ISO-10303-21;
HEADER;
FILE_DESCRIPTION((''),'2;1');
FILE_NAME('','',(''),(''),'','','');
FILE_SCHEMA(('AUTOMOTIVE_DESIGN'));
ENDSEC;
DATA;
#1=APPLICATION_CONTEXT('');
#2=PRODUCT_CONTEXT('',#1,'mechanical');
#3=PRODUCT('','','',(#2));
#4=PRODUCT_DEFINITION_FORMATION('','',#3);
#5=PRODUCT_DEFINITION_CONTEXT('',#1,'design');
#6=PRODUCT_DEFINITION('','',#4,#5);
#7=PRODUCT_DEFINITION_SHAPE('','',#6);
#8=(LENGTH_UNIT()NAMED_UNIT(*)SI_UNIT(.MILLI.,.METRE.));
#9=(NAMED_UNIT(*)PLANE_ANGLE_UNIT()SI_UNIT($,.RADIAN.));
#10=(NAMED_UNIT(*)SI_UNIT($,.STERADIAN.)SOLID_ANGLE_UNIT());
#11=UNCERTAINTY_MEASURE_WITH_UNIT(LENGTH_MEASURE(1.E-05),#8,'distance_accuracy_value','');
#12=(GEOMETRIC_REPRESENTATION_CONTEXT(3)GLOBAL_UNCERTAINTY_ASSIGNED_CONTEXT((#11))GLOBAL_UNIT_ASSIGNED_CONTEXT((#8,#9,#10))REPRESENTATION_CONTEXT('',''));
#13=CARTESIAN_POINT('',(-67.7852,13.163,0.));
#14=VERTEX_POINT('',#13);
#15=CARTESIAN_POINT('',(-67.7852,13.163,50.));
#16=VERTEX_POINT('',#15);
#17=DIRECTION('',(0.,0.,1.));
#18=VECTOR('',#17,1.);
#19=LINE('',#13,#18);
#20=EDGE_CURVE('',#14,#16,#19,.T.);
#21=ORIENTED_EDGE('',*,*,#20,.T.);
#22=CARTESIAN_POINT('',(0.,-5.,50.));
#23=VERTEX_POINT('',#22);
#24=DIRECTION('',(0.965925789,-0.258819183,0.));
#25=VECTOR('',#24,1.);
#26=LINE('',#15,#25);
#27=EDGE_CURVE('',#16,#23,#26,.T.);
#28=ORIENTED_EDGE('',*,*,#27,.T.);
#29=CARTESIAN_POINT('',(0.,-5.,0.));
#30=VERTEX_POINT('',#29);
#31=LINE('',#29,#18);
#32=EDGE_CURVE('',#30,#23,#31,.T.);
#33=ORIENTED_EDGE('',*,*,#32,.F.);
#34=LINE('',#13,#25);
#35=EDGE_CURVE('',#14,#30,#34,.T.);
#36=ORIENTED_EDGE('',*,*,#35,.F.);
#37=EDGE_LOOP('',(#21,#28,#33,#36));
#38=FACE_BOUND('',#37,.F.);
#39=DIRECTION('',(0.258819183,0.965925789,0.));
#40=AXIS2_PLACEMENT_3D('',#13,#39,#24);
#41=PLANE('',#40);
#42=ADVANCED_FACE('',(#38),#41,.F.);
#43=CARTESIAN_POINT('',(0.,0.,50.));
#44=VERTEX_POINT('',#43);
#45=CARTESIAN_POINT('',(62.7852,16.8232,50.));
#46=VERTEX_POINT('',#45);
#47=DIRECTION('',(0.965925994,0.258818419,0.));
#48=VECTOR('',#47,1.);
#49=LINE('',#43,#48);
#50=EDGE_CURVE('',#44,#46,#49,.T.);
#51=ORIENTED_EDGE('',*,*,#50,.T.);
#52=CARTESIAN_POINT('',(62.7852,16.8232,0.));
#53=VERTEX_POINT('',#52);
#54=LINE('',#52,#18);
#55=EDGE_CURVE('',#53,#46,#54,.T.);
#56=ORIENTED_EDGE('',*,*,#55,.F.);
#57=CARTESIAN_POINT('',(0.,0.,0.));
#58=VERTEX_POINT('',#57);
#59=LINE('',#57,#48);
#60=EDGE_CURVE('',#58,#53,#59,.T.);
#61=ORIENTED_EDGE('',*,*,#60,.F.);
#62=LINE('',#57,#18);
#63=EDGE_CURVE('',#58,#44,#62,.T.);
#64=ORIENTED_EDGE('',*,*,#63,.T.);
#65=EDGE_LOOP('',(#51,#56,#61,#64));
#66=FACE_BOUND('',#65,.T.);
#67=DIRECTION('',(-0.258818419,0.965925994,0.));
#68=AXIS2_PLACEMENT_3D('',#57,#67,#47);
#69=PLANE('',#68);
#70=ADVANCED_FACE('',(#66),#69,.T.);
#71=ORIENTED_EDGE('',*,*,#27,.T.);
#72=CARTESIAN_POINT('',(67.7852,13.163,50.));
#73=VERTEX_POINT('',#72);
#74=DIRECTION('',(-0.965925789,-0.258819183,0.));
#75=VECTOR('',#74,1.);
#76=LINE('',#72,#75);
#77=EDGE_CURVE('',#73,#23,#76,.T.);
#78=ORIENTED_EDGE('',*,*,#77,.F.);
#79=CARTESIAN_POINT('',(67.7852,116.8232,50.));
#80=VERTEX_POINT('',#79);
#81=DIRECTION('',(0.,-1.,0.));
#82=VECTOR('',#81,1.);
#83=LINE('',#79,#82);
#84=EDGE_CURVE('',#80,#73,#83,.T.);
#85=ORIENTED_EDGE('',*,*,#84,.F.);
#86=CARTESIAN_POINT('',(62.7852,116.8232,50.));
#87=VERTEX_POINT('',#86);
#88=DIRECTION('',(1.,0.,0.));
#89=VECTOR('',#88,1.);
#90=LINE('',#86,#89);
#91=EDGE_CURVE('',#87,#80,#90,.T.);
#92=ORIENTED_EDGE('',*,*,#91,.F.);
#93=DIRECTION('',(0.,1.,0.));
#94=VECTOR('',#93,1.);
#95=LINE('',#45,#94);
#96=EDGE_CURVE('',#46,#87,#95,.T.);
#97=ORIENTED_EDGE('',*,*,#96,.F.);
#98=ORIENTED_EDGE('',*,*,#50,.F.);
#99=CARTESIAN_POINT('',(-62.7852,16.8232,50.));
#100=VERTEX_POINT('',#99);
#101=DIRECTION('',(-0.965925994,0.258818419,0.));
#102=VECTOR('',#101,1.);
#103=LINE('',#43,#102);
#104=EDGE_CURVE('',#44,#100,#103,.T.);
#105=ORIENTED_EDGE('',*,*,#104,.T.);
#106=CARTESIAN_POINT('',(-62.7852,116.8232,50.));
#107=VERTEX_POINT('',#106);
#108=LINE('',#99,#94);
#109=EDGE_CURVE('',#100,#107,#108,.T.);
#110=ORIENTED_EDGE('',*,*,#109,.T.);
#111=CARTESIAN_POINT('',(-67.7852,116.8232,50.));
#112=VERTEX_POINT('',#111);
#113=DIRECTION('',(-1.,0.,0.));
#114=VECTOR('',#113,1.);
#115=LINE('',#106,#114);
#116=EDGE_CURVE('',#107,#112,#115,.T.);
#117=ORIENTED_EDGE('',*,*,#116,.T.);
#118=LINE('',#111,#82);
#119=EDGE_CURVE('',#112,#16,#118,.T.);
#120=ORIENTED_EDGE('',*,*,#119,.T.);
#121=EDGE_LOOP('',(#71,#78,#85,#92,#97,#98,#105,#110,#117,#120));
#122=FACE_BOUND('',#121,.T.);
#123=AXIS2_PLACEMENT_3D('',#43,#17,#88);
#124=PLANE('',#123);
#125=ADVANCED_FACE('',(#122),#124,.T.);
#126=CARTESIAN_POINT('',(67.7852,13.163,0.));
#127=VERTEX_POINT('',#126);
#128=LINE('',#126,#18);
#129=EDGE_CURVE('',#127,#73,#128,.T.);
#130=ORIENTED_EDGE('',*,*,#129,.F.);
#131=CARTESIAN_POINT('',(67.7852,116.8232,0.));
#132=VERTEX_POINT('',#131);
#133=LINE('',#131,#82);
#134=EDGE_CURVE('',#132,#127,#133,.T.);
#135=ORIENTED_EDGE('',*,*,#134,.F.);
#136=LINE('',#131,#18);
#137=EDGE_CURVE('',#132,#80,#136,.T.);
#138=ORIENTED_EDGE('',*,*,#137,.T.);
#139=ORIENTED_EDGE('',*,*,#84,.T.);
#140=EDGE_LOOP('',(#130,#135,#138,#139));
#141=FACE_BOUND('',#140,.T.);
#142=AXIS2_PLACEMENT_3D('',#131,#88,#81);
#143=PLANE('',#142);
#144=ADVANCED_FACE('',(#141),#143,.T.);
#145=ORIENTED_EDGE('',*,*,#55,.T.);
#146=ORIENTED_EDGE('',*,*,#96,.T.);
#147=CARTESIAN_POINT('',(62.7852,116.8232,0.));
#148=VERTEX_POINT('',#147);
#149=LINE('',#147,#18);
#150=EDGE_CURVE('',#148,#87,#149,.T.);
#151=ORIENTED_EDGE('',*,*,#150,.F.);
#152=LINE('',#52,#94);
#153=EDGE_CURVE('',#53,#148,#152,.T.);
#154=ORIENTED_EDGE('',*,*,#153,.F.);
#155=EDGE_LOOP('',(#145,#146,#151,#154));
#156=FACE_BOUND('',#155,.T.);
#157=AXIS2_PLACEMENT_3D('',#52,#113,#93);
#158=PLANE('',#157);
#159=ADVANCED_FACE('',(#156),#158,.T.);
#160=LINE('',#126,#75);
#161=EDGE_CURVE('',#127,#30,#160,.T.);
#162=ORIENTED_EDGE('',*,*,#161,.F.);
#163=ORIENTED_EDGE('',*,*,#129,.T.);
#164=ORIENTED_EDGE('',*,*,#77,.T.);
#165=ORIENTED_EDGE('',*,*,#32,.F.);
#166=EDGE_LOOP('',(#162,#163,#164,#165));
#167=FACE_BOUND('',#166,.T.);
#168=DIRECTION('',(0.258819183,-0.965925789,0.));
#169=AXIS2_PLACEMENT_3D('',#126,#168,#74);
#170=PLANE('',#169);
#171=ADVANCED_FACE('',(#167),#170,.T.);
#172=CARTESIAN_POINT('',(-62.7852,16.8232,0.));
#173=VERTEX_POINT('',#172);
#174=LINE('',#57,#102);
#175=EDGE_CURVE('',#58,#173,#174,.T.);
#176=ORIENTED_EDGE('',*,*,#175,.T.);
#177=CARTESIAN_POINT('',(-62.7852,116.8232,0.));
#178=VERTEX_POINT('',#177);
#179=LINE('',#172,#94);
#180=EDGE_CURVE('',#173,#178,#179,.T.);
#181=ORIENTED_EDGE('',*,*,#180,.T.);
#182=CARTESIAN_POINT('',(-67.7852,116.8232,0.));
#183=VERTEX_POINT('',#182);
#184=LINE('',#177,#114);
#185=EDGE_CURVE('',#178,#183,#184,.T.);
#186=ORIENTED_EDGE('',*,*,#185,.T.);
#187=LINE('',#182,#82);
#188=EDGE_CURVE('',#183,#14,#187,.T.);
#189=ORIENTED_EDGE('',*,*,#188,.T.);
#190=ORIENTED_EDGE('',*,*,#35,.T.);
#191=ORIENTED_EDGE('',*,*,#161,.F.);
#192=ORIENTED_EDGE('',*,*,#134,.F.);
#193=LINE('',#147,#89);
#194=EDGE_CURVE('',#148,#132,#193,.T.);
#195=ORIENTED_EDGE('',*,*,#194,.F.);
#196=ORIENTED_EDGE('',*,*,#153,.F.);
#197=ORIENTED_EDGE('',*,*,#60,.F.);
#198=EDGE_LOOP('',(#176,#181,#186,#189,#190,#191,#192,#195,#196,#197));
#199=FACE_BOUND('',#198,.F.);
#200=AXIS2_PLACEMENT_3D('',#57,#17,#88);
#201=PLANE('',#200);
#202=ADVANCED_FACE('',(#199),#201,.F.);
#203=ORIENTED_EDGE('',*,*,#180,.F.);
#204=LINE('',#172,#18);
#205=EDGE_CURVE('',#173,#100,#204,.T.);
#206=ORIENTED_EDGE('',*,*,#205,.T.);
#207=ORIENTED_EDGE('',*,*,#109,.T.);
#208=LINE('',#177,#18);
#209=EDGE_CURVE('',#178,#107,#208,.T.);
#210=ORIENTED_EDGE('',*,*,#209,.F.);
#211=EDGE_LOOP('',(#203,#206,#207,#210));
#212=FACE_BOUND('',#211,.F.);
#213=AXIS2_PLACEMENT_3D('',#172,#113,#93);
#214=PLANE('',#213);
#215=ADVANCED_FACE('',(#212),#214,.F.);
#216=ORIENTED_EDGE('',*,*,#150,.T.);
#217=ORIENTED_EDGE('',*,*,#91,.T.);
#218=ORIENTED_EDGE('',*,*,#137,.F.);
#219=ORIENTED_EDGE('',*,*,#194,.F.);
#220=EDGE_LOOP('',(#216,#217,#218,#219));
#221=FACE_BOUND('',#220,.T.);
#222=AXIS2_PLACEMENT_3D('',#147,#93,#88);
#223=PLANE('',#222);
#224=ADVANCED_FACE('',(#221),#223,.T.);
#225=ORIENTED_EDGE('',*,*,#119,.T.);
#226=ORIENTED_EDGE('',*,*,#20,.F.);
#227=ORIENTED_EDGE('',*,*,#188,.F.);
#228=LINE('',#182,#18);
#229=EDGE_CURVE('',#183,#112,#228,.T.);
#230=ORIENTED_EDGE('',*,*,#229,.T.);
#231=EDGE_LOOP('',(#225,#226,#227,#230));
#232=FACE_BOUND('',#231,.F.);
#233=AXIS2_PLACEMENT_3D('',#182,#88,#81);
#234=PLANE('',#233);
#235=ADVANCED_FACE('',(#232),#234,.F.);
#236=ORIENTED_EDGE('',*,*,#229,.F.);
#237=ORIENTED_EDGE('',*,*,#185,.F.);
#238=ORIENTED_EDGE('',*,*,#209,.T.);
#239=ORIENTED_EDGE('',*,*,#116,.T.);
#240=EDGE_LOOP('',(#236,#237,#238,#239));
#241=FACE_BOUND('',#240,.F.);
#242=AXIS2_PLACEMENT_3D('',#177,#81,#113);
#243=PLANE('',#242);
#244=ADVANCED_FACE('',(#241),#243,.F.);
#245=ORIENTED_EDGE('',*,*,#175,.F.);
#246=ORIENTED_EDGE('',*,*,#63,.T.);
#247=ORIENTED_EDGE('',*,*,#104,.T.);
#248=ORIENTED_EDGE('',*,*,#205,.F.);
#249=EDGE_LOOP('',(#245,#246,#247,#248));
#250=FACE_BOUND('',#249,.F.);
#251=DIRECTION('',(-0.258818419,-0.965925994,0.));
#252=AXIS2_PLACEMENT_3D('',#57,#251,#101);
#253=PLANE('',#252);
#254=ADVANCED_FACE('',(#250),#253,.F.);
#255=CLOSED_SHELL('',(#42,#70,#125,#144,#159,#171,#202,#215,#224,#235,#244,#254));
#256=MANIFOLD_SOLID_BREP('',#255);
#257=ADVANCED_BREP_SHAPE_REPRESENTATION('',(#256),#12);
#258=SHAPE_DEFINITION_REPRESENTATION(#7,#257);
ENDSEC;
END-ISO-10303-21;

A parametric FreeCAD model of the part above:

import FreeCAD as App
import Part
import Sketcher
Q = App.Units.Quantity

doc = App.newDocument("Part")
body = doc.addObject("PartDesign::Body", "Body")

# Sketch on XY plane
sketch1 = body.newObject("Sketcher::SketchObject", "Sketch")
sketch1.AttachmentSupport = (doc.getObject("XY_Plane"), [""])
sketch1.MapMode = "FlatFace"
sketch1.addGeometry([
    Part.LineSegment(App.Vector(63, 17, 0), App.Vector(0, 0, 0)),  # 0
    Part.LineSegment(App.Vector(0, 0, 0), App.Vector(-63, 17, 0)),  # 1
    Part.LineSegment(App.Vector(-63, 17, 0), App.Vector(-63, 117, 0)),  # 2
    Part.LineSegment(App.Vector(-63, 117, 0), App.Vector(-68, 117, 0)),  # 3
    Part.LineSegment(App.Vector(-68, 117, 0), App.Vector(-68, 13, 0)),  # 4
    Part.LineSegment(App.Vector(-68, 13, 0), App.Vector(0, -5, 0)),  # 5
    Part.LineSegment(App.Vector(0, -5, 0), App.Vector(68, 13, 0)),  # 6
    Part.LineSegment(App.Vector(68, 13, 0), App.Vector(68, 117, 0)),  # 7
    Part.LineSegment(App.Vector(68, 117, 0), App.Vector(63, 117, 0)),  # 8
    Part.LineSegment(App.Vector(63, 117, 0), App.Vector(63, 17, 0)),  # 9
], False)
sketch1.addConstraint([
    Sketcher.Constraint("Coincident", 0, 2, 1, 1),
    Sketcher.Constraint("Coincident", 1, 2, 2, 1),
    Sketcher.Constraint("Coincident", 2, 2, 3, 1),
    Sketcher.Constraint("Coincident", 3, 2, 4, 1),
    Sketcher.Constraint("Coincident", 4, 2, 5, 1),
    Sketcher.Constraint("Coincident", 5, 2, 6, 1),
    Sketcher.Constraint("Coincident", 6, 2, 7, 1),
    Sketcher.Constraint("Coincident", 7, 2, 8, 1),
    Sketcher.Constraint("Coincident", 8, 2, 9, 1),
    Sketcher.Constraint("Coincident", 9, 2, 0, 1),
    Sketcher.Constraint("Vertical", 2),
    Sketcher.Constraint("Horizontal", 3),
    Sketcher.Constraint("Vertical", 4),
    Sketcher.Constraint("Vertical", 7),
    Sketcher.Constraint("Horizontal", 8),
    Sketcher.Constraint("Vertical", 9),
    Sketcher.Constraint("Coincident", 0, 2, -1, 1),
    Sketcher.Constraint("Symmetric", 4, 2, 6, 2, -2),
    Sketcher.Constraint("Symmetric", 2, 2, 8, 2, -2),
    Sketcher.Constraint("PointOnObject", 5, 2, -2),
    Sketcher.Constraint("Parallel", 1, 5),
    Sketcher.Constraint("Parallel", 0, 6),
    Sketcher.Constraint("DistanceX", 3, 2, 3, 1, 5.0),
    Sketcher.Constraint("DistanceY", 2, 1, 2, 2, 100.0),
    Sketcher.Constraint("Angle", 5, Q("-15 deg")),
    Sketcher.Constraint("Distance", 0, 65.0),
    Sketcher.Constraint("DistanceY", 5, 2, -1, 1, 5.0),
])
pad1 = body.newObject("PartDesign::Pad", "Pad")
pad1.Profile = sketch1
pad1.Length = 50

doc.recompute()
